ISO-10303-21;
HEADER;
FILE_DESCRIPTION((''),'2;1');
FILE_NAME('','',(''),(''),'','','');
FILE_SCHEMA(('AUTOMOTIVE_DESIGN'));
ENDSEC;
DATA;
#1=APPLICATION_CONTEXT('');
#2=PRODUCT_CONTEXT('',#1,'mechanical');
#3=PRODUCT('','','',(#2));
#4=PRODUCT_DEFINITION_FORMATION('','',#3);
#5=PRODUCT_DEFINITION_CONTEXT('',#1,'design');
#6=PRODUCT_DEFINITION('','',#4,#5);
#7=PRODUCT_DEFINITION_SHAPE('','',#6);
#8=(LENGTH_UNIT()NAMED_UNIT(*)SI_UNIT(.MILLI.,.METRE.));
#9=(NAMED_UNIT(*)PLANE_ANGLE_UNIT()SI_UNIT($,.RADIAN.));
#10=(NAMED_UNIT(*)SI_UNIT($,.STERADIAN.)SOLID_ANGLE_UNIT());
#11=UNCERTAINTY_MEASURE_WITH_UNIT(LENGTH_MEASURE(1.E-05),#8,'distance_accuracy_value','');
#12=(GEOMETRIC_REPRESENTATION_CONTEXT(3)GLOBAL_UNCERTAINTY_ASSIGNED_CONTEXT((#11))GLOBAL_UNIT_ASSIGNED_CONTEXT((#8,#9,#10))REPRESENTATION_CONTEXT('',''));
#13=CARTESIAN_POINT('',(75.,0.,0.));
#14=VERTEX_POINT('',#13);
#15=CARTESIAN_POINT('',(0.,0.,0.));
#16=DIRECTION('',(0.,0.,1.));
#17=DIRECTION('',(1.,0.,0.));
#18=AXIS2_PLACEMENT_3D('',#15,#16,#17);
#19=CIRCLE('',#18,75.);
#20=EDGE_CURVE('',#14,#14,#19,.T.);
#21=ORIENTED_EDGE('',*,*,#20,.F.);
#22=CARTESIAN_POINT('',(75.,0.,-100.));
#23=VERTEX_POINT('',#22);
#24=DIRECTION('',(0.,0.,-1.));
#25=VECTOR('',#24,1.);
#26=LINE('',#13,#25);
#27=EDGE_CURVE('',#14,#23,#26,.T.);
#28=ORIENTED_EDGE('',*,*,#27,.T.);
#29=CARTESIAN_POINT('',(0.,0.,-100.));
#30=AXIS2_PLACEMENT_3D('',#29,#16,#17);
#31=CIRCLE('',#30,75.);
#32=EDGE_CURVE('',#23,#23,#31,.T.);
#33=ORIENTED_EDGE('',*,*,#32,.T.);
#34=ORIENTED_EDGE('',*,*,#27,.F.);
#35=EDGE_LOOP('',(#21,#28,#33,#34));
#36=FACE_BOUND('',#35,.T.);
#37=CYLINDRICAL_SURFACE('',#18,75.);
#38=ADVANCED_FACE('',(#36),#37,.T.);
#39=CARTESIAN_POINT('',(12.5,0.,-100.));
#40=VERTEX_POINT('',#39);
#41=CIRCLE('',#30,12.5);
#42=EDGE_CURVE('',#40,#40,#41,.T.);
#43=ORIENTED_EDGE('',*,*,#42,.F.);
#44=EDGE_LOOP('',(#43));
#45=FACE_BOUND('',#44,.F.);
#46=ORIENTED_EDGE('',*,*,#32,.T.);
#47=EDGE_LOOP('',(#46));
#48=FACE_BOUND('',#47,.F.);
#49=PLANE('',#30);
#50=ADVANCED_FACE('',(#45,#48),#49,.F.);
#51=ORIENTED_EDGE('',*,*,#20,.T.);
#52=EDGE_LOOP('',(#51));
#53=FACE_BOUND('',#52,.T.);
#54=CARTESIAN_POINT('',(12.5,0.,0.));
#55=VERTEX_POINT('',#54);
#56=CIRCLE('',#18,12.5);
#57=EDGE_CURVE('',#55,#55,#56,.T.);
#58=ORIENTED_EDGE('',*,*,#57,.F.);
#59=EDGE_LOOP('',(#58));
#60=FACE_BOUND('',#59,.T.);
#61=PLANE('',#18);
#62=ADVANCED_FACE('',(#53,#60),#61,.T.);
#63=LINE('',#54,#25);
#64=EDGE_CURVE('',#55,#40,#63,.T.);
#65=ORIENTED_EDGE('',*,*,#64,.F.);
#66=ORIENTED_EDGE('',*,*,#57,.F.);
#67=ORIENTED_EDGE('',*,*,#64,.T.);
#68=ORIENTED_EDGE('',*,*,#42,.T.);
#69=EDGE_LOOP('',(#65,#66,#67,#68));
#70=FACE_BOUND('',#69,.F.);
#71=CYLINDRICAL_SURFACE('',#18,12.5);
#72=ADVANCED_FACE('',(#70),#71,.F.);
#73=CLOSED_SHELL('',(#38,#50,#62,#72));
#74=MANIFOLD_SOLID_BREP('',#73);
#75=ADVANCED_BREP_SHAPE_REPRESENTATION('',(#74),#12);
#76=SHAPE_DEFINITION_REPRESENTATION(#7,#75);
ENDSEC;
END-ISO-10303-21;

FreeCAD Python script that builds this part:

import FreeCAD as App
import Part
import Sketcher

V = App.Vector
Q = App.Units.Quantity

doc = App.newDocument("Part")
body = doc.addObject("PartDesign::Body", "Body")

# Sketch on XY plane
sketch1 = body.newObject("Sketcher::SketchObject", "Sketch")
sketch1.AttachmentSupport = (doc.getObject("XY_Plane"), [""])
sketch1.MapMode = "FlatFace"
sketch1.addGeometry(Part.Circle(V(0, 0, 0), V(0, 0, 1), 75), False)
sketch1.addGeometry(Part.Circle(V(0, 0, 0), V(0, 0, 1), 12), False)
sketch1.addConstraint(Sketcher.Constraint("Coincident", 0, 3, -1, 1))
sketch1.addConstraint(Sketcher.Constraint("Coincident", 1, 3, -1, 1))
sketch1.addConstraint(Sketcher.Constraint("Diameter", 0, Q("150 mm")))
sketch1.addConstraint(Sketcher.Constraint("Diameter", 1, Q("25 mm")))
pad1 = body.newObject("PartDesign::Pad", "Pad")
pad1.Profile = sketch1
pad1.Length = 100
pad1.Reversed = True

doc.recompute()
